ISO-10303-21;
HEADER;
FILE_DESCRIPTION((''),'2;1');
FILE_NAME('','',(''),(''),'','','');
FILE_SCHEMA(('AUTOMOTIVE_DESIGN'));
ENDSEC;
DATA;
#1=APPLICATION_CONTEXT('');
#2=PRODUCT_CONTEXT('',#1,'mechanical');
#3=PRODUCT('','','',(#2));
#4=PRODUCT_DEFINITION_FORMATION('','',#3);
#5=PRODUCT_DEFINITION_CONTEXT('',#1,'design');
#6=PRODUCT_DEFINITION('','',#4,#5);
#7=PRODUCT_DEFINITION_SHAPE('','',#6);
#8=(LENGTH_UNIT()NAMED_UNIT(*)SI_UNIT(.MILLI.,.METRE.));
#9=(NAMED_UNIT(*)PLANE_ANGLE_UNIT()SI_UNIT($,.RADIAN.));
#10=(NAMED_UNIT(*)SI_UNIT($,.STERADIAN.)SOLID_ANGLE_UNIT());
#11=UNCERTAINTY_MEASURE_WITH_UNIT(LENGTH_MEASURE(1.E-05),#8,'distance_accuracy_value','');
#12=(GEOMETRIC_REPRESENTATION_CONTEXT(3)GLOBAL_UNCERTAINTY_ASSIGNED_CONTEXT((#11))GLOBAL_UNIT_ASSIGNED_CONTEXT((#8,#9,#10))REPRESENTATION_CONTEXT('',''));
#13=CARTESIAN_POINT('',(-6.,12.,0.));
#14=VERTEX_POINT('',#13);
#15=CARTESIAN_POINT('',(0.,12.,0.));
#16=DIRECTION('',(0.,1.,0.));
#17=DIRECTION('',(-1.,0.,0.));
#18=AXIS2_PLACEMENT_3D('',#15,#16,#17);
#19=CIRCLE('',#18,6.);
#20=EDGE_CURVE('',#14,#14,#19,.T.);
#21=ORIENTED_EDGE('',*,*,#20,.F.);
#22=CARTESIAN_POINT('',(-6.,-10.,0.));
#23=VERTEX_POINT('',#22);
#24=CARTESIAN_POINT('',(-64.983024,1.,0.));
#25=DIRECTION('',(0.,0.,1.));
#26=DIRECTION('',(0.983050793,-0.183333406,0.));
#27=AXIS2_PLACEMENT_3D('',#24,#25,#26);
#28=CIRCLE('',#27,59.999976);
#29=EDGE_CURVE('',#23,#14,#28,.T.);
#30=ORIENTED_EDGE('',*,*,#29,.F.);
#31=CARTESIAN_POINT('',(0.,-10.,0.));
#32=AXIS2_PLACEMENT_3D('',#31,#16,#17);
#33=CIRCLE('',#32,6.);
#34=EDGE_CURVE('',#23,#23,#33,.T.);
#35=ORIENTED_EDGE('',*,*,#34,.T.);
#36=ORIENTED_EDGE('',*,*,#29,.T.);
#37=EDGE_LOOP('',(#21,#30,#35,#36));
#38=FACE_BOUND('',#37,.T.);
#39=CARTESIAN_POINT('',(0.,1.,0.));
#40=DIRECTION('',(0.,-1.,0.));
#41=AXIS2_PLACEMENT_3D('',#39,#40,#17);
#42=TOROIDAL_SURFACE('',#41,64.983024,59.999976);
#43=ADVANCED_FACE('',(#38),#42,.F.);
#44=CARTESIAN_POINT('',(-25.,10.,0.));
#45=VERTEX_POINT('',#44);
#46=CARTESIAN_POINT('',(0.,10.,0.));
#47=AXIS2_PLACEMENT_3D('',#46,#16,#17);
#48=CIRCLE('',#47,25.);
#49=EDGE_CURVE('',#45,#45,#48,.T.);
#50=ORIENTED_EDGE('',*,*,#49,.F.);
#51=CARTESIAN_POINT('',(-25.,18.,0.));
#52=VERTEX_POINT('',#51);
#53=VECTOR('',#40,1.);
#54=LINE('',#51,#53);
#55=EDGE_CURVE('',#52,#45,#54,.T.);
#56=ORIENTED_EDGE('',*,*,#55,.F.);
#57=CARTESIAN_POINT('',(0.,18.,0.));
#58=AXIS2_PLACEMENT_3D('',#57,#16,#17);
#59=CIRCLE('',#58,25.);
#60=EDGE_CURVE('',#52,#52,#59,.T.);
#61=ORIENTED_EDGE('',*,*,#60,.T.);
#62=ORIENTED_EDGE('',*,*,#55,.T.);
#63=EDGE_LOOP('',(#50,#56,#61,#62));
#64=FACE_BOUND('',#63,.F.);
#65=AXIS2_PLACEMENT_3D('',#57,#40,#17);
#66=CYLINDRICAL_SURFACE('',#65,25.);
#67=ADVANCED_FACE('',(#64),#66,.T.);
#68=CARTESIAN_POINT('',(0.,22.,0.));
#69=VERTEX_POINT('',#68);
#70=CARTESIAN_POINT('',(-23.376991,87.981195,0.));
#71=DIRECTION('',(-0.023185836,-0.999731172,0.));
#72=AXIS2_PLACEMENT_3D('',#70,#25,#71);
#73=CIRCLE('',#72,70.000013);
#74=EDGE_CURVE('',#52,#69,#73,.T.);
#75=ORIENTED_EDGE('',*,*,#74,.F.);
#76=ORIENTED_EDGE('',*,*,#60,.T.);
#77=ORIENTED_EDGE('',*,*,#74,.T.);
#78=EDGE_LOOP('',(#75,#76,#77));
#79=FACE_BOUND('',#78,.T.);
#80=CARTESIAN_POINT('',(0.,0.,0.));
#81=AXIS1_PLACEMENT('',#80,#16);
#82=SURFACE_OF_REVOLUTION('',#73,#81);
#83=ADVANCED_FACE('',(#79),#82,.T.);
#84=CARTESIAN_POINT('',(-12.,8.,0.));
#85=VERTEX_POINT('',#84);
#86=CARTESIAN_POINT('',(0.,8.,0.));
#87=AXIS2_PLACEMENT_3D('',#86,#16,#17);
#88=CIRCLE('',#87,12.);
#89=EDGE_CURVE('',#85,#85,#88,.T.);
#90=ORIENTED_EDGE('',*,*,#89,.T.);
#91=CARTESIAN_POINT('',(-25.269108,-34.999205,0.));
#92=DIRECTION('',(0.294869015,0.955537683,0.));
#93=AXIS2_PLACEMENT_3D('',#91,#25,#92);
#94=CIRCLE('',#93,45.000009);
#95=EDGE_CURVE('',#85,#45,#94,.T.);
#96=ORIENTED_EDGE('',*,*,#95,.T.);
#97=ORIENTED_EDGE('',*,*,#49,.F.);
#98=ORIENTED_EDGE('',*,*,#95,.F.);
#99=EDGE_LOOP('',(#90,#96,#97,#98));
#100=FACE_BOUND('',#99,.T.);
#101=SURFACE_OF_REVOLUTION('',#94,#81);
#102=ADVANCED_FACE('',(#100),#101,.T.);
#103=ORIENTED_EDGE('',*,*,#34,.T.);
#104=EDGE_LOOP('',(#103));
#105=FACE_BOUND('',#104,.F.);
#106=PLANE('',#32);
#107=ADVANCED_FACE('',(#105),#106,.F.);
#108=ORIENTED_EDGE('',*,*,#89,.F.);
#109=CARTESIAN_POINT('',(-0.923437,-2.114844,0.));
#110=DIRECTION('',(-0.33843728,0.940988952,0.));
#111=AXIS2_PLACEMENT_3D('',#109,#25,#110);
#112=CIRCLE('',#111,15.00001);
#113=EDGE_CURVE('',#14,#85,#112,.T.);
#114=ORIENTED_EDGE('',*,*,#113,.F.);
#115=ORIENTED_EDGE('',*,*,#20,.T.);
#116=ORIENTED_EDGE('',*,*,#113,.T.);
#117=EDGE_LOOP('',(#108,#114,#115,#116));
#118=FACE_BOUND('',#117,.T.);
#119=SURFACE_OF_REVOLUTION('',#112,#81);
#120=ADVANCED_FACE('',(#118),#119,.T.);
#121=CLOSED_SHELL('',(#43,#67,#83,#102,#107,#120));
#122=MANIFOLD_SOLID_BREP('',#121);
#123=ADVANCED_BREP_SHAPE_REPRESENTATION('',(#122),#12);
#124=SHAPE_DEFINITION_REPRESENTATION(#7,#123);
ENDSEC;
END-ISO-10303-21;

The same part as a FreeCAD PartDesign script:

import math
import FreeCAD as App
import Part
import Sketcher

V = App.Vector
Q = App.Units.Quantity

doc = App.newDocument("Part")
body = doc.addObject("PartDesign::Body", "Body")

# Sketch on XY plane
sketch1 = doc.addObject("Sketcher::SketchObject", "Sketch")
body.addObject(sketch1)
sketch1.AttachmentSupport = (doc.XY_Plane, [""])
sketch1.MapMode = "FlatFace"
sketch1.addGeometry([
    Part.LineSegment(V(-25, 18, 0), V(-25, 10, 0)),  # 0
    Part.ArcOfCircle(Part.Circle(V(-25, -35, 0), V(0, 0, 1), 45), math.radians(72.85), math.radians(89.66)),  # 1
    Part.ArcOfCircle(Part.Circle(V(-1, -2, 0), V(0, 0, 1), 15), math.radians(110), math.radians(138)),  # 2
    Part.ArcOfCircle(Part.Circle(V(-65, 1, 0), V(0, 0, 1), 60), math.radians(-11), math.radians(11)),  # 3
    Part.LineSegment(V(-6, -10, 0), V(0, -10, 0)),  # 4
    Part.LineSegment(V(0, -10, 0), V(0, 22, 0)),  # 5
    Part.ArcOfCircle(Part.Circle(V(-23, 88, 0), V(0, 0, 1), 70), math.radians(-91), math.radians(-70)),  # 6
], False)
sketch1.addConstraint([
    Sketcher.Constraint("Coincident", 0, 2, 1, 2),
    Sketcher.Constraint("Coincident", 1, 1, 2, 2),
    Sketcher.Constraint("Coincident", 2, 1, 3, 2),
    Sketcher.Constraint("Coincident", 3, 1, 4, 1),
    Sketcher.Constraint("Coincident", 4, 2, 5, 1),
    Sketcher.Constraint("Coincident", 5, 2, 6, 2),
    Sketcher.Constraint("Coincident", 6, 1, 0, 1),
    Sketcher.Constraint("Vertical", 0),
    Sketcher.Constraint("Horizontal", 4),
    Sketcher.Constraint("Vertical", 5),
    Sketcher.Constraint("PointOnObject", 4, 2, -2),
    Sketcher.Constraint("Vertical", 2, 1, 3, 1),
    Sketcher.Constraint("DistanceX", 4, 1, 4, 2, Q("6 mm")),
    Sketcher.Constraint("DistanceY", 0, 2, 0, 1, Q("8 mm")),
    Sketcher.Constraint("DistanceY", 5, 1, 5, 2, Q("32 mm")),
    Sketcher.Constraint("DistanceY", -1, 1, 3, 3, Q("1 mm")),
    Sketcher.Constraint("DistanceX", 0, 2, -1, 1, Q("25 mm")),
    Sketcher.Constraint("DistanceY", -1, 1, 0, 2, Q("10 mm")),
    Sketcher.Constraint("DistanceX", 1, 1, -1, 1, Q("12 mm")),
    Sketcher.Constraint("DistanceY", -1, 1, 1, 1, Q("8 mm")),
    Sketcher.Constraint("DistanceY", -1, 1, 2, 1, Q("12 mm")),
    Sketcher.Constraint("Radius", 1, Q("45.000009 mm")),
    Sketcher.Constraint("Radius", 2, Q("15.00001 mm")),
    Sketcher.Constraint("Radius", 3, Q("59.999976 mm")),
    Sketcher.Constraint("Radius", 6, Q("70.000013 mm")),
])
revolution = doc.addObject("PartDesign::Revolution", "Revolution")
body.addObject(revolution)
revolution.Profile = sketch1
revolution.ReferenceAxis = (sketch1, ["V_Axis"])
revolution.Angle = 360

doc.recompute()
